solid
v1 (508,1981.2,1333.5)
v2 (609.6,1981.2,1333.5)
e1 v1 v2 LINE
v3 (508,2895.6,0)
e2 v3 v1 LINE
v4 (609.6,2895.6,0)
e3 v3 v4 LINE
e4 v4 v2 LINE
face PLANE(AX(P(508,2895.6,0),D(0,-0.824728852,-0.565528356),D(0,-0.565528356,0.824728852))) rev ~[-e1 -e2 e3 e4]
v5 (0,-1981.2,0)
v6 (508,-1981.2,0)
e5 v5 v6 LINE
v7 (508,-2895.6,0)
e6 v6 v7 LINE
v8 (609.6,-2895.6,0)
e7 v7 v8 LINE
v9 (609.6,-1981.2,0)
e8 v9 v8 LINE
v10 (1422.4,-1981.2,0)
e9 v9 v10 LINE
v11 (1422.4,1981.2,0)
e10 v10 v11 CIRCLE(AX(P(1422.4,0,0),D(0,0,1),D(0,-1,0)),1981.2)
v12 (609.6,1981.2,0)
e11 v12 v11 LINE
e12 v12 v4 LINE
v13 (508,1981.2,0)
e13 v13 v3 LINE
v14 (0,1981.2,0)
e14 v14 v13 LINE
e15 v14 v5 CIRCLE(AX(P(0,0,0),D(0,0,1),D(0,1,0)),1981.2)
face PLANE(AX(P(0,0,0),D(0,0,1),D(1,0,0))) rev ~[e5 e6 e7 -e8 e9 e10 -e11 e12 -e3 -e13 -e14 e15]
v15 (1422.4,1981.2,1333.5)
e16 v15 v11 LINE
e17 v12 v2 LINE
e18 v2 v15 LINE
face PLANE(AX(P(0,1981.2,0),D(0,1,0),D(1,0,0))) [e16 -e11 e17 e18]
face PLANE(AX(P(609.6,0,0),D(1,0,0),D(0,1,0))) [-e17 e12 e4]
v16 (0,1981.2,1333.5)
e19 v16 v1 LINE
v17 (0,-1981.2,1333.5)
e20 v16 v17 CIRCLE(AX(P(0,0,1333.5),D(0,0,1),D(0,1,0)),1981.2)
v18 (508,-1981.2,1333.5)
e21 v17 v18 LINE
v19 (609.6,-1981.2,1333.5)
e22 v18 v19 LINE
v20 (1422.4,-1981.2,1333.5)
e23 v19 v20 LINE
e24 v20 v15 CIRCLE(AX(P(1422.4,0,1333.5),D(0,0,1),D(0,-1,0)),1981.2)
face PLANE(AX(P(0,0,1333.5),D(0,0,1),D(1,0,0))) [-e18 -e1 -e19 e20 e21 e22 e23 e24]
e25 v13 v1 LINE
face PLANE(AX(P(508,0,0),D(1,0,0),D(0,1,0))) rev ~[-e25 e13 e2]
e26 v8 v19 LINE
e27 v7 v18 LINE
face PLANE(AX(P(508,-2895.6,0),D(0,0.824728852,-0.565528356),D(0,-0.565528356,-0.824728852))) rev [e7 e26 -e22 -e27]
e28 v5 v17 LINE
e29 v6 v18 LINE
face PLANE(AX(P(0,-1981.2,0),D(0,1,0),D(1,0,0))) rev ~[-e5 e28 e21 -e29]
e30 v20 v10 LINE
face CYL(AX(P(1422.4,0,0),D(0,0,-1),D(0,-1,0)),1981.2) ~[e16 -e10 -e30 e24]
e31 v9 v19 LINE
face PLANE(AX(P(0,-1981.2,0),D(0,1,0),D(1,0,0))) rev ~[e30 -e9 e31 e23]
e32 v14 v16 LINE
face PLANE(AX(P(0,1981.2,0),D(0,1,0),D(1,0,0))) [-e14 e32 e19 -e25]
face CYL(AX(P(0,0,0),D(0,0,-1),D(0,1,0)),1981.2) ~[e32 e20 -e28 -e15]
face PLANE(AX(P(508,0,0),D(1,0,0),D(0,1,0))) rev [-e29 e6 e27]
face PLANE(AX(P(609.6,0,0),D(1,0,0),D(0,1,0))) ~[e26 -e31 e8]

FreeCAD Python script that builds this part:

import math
import FreeCAD as App
import Part
import Sketcher

V = App.Vector
Q = App.Units.Quantity


def add_polygon(sketch, points):
    """Adds a closed chain of lines whose ends are joined by coincident constraints."""
    first, n = sketch.GeometryCount, len(points)
    for a, b in zip(points, points[1:] + points[:1]):
        sketch.addGeometry(Part.LineSegment(App.Vector(*a, 0), App.Vector(*b, 0)), False)
    for i in range(n):
        sketch.addConstraint(Sketcher.Constraint("Coincident", first + i, 2, first + (i + 1) % n, 1))

doc = App.newDocument("Part")
body = doc.addObject("PartDesign::Body", "Body")

sketch1 = body.newObject("Sketcher::SketchObject", "Sketch")
sketch1.AttachmentSupport = (doc.getObject("XY_Plane"), [""])
sketch1.MapMode = "FlatFace"
sketch1.addGeometry(Part.LineSegment(V(1422, 1981, 0), V(0, 1981, 0)), False)
sketch1.addGeometry(Part.ArcOfCircle(Part.Circle(V(0, 0, 0), V(0, 0, 1), 1981), math.radians(90), math.radians(270)), False)
sketch1.addGeometry(Part.LineSegment(V(0, -1981, 0), V(1422, -1981, 0)), False)
sketch1.addGeometry(Part.ArcOfCircle(Part.Circle(V(1422, 0, 0), V(0, 0, 1), 1981), math.radians(-90), math.radians(90)), False)
sketch1.addConstraint(Sketcher.Constraint("Coincident", 0, 2, 1, 1))
sketch1.addConstraint(Sketcher.Constraint("Coincident", 1, 2, 2, 1))
sketch1.addConstraint(Sketcher.Constraint("Coincident", 2, 2, 3, 1))
sketch1.addConstraint(Sketcher.Constraint("Coincident", 3, 2, 0, 1))
sketch1.addConstraint(Sketcher.Constraint("Horizontal", 0))
sketch1.addConstraint(Sketcher.Constraint("Horizontal", 2))
sketch1.addConstraint(Sketcher.Constraint("Coincident", 1, 3, -1, 1))
sketch1.addConstraint(Sketcher.Constraint("PointOnObject", 0, 2, -2))
sketch1.addConstraint(Sketcher.Constraint("Vertical", 3, 3, 2, 2))
sketch1.addConstraint(Sketcher.Constraint("Equal", 0, 2))
sketch1.addConstraint(Sketcher.Constraint("Radius", 1, Q("78 in")))
sketch1.addConstraint(Sketcher.Constraint("DistanceX", 0, 2, 0, 1, Q("56 in")))
sketch1.addConstraint(Sketcher.Constraint("DistanceX", -1, 1, 3, 3, Q("56 in")))
pad1 = body.newObject("PartDesign::Pad", "Pad")
pad1.Profile = sketch1
pad1.Length = Q("0.5 in")

sketch2 = body.newObject("Sketcher::SketchObject", "Sketch001")
sketch2.AttachmentSupport = (doc.getObject("XY_Plane"), [""])
sketch2.MapMode = "FlatFace"
sketch2.AttachmentOffset = App.Placement(V(0, 0, 0.5 * 25.4), App.Rotation())
sketch2.addGeometry(Part.LineSegment(V(1422, 1981, 0), V(0, 1981, 0)), False)
sketch2.addGeometry(Part.ArcOfCircle(Part.Circle(V(0, 0, 0), V(0, 0, 1), 1981), math.radians(90), math.radians(270)), False)
sketch2.addGeometry(Part.LineSegment(V(0, -1981, 0), V(1422, -1981, 0)), False)
sketch2.addGeometry(Part.ArcOfCircle(Part.Circle(V(1422, 0, 0), V(0, 0, 1), 1981), math.radians(-90), math.radians(90)), False)
sketch2.addConstraint(Sketcher.Constraint("Coincident", 0, 2, 1, 1))
sketch2.addConstraint(Sketcher.Constraint("Coincident", 1, 2, 2, 1))
sketch2.addConstraint(Sketcher.Constraint("Coincident", 2, 2, 3, 1))
sketch2.addConstraint(Sketcher.Constraint("Coincident", 3, 2, 0, 1))
sketch2.addConstraint(Sketcher.Constraint("Horizontal", 0))
sketch2.addConstraint(Sketcher.Constraint("Horizontal", 2))
sketch2.addConstraint(Sketcher.Constraint("Coincident", 1, 3, -1, 1))
sketch2.addConstraint(Sketcher.Constraint("PointOnObject", 0, 2, -2))
sketch2.addConstraint(Sketcher.Constraint("Vertical", 3, 3, 2, 2))
sketch2.addConstraint(Sketcher.Constraint("Equal", 0, 2))
sketch2.addConstraint(Sketcher.Constraint("Radius", 1, Q("78 in")))
sketch2.addConstraint(Sketcher.Constraint("DistanceX", 0, 2, 0, 1, Q("56 in")))
sketch2.addConstraint(Sketcher.Constraint("DistanceX", -1, 1, 3, 3, Q("56 in")))
pad2 = body.newObject("PartDesign::Pad", "Pad001")
pad2.Profile = sketch2
pad2.Length = Q("52 in")

sketch3 = body.newObject("Sketcher::SketchObject", "Sketch002")
sketch3.AttachmentSupport = (doc.getObject("YZ_Plane"), [""])
sketch3.MapMode = "FlatFace"
sketch3.AttachmentOffset = App.Placement(V(0, 0, 20 * 25.4), App.Rotation())
add_polygon(sketch3, [(1981, 1334), (1981, 0), (2896, 0)])
sketch3.addConstraint(Sketcher.Constraint("Vertical", 0))
sketch3.addConstraint(Sketcher.Constraint("Horizontal", 1))
sketch3.addConstraint(Sketcher.Constraint("PointOnObject", 0, 2, -1))
sketch3.addConstraint(Sketcher.Constraint("DistanceX", 1, 1, 1, 2, Q("36 in")))
sketch3.addConstraint(Sketcher.Constraint("DistanceY", 0, 2, 0, 1, Q("52.5 in")))
sketch3.addConstraint(Sketcher.Constraint("DistanceX", -1, 1, 0, 2, Q("78 in")))
pad3 = body.newObject("PartDesign::Pad", "Pad002")
pad3.Profile = sketch3
pad3.Length = Q("4 in")
doc.recompute()

mirrored = body.newObject("PartDesign::Mirrored", "Mirrored")
mirrored.Originals = [pad3]
mirrored.MirrorPlane = (doc.getObject("XZ_Plane"), [""])
body.Tip = mirrored

doc.recompute()
